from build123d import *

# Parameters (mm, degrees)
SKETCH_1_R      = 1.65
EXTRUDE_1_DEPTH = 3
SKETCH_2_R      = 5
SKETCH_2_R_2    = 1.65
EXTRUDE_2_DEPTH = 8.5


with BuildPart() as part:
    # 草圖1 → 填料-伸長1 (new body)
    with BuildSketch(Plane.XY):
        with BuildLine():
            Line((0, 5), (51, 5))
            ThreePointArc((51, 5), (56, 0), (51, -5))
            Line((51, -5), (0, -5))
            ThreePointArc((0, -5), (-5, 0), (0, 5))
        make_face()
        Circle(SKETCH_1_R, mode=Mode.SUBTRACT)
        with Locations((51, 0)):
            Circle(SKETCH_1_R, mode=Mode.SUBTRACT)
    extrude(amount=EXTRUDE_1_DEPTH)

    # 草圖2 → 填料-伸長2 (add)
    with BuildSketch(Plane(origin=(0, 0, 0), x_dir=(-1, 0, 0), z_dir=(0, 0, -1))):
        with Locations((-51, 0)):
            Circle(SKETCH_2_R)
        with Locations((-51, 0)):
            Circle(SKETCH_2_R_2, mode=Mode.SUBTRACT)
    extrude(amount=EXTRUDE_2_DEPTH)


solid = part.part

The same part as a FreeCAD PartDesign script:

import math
import FreeCAD as App
import Part
import Sketcher

V = App.Vector

doc = App.newDocument("Part")
body = doc.addObject("PartDesign::Body", "Body")

# Sketch on XY plane
sketch1 = doc.addObject("Sketcher::SketchObject", "Sketch")
body.addObject(sketch1)
sketch1.AttachmentSupport = (doc.XY_Plane, [""])
sketch1.MapMode = "FlatFace"
sketch1.addGeometry(Part.LineSegment(V(51, 5, 0), V(0, 5, 0)), False)
sketch1.addGeometry(Part.ArcOfCircle(Part.Circle(V(0, 0, 0), V(0, 0, 1), 5), math.radians(90), math.radians(270)), False)
sketch1.addGeometry(Part.LineSegment(V(0, -5, 0), V(51, -5, 0)), False)
sketch1.addGeometry(Part.ArcOfCircle(Part.Circle(V(51, 0, 0), V(0, 0, 1), 5), math.radians(-90), math.radians(90)), False)
sketch1.addGeometry(Part.Circle(V(51, 0, 0), V(0, 0, 1), 1.65), False)
sketch1.addGeometry(Part.Circle(V(0, 0, 0), V(0, 0, 1), 1.65), False)
sketch1.addConstraint(Sketcher.Constraint("Tangent", 0, 2, 1, 1))
sketch1.addConstraint(Sketcher.Constraint("Tangent", 1, 2, 2, 1))
sketch1.addConstraint(Sketcher.Constraint("Tangent", 2, 2, 3, 1))
sketch1.addConstraint(Sketcher.Constraint("Tangent", 3, 2, 0, 1))
sketch1.addConstraint(Sketcher.Constraint("Horizontal", 0))
sketch1.addConstraint(Sketcher.Constraint("Horizontal", 2))
sketch1.addConstraint(Sketcher.Constraint("Coincident", 1, 3, -1, 1))
sketch1.addConstraint(Sketcher.Constraint("Coincident", 5, 3, -1, 1))
sketch1.addConstraint(Sketcher.Constraint("Coincident", 4, 3, 3, 3))
sketch1.addConstraint(Sketcher.Constraint("Equal", 4, 5))
sketch1.addConstraint(Sketcher.Constraint("Radius", 1, 5.0))
sketch1.addConstraint(Sketcher.Constraint("Diameter", 4, 3.3))
sketch1.addConstraint(Sketcher.Constraint("DistanceX", 0, 2, 0, 1, 51.0))
pad1 = doc.addObject("PartDesign::Pad", "Pad")
body.addObject(pad1)
pad1.Profile = sketch1
pad1.Length = 3

# Sketch on XY plane
sketch2 = doc.addObject("Sketcher::SketchObject", "Sketch001")
body.addObject(sketch2)
sketch2.AttachmentSupport = (doc.XY_Plane, [""])
sketch2.MapMode = "FlatFace"
sketch2.addGeometry(Part.Circle(V(51, 0, 0), V(0, 0, 1), 5), False)
sketch2.addGeometry(Part.Circle(V(51, 0, 0), V(0, 0, 1), 1.65), False)
sketch2.addConstraint(Sketcher.Constraint("Coincident", 1, 3, 0, 3))
sketch2.addConstraint(Sketcher.Constraint("PointOnObject", 0, 3, -1))
sketch2.addConstraint(Sketcher.Constraint("Diameter", 0, 10.0))
sketch2.addConstraint(Sketcher.Constraint("Diameter", 1, 3.3))
sketch2.addConstraint(Sketcher.Constraint("DistanceX", -1, 1, 0, 3, 51.0))
pad2 = doc.addObject("PartDesign::Pad", "Pad001")
body.addObject(pad2)
pad2.Profile = sketch2
pad2.Length = 8.5
pad2.Reversed = True

doc.recompute()
